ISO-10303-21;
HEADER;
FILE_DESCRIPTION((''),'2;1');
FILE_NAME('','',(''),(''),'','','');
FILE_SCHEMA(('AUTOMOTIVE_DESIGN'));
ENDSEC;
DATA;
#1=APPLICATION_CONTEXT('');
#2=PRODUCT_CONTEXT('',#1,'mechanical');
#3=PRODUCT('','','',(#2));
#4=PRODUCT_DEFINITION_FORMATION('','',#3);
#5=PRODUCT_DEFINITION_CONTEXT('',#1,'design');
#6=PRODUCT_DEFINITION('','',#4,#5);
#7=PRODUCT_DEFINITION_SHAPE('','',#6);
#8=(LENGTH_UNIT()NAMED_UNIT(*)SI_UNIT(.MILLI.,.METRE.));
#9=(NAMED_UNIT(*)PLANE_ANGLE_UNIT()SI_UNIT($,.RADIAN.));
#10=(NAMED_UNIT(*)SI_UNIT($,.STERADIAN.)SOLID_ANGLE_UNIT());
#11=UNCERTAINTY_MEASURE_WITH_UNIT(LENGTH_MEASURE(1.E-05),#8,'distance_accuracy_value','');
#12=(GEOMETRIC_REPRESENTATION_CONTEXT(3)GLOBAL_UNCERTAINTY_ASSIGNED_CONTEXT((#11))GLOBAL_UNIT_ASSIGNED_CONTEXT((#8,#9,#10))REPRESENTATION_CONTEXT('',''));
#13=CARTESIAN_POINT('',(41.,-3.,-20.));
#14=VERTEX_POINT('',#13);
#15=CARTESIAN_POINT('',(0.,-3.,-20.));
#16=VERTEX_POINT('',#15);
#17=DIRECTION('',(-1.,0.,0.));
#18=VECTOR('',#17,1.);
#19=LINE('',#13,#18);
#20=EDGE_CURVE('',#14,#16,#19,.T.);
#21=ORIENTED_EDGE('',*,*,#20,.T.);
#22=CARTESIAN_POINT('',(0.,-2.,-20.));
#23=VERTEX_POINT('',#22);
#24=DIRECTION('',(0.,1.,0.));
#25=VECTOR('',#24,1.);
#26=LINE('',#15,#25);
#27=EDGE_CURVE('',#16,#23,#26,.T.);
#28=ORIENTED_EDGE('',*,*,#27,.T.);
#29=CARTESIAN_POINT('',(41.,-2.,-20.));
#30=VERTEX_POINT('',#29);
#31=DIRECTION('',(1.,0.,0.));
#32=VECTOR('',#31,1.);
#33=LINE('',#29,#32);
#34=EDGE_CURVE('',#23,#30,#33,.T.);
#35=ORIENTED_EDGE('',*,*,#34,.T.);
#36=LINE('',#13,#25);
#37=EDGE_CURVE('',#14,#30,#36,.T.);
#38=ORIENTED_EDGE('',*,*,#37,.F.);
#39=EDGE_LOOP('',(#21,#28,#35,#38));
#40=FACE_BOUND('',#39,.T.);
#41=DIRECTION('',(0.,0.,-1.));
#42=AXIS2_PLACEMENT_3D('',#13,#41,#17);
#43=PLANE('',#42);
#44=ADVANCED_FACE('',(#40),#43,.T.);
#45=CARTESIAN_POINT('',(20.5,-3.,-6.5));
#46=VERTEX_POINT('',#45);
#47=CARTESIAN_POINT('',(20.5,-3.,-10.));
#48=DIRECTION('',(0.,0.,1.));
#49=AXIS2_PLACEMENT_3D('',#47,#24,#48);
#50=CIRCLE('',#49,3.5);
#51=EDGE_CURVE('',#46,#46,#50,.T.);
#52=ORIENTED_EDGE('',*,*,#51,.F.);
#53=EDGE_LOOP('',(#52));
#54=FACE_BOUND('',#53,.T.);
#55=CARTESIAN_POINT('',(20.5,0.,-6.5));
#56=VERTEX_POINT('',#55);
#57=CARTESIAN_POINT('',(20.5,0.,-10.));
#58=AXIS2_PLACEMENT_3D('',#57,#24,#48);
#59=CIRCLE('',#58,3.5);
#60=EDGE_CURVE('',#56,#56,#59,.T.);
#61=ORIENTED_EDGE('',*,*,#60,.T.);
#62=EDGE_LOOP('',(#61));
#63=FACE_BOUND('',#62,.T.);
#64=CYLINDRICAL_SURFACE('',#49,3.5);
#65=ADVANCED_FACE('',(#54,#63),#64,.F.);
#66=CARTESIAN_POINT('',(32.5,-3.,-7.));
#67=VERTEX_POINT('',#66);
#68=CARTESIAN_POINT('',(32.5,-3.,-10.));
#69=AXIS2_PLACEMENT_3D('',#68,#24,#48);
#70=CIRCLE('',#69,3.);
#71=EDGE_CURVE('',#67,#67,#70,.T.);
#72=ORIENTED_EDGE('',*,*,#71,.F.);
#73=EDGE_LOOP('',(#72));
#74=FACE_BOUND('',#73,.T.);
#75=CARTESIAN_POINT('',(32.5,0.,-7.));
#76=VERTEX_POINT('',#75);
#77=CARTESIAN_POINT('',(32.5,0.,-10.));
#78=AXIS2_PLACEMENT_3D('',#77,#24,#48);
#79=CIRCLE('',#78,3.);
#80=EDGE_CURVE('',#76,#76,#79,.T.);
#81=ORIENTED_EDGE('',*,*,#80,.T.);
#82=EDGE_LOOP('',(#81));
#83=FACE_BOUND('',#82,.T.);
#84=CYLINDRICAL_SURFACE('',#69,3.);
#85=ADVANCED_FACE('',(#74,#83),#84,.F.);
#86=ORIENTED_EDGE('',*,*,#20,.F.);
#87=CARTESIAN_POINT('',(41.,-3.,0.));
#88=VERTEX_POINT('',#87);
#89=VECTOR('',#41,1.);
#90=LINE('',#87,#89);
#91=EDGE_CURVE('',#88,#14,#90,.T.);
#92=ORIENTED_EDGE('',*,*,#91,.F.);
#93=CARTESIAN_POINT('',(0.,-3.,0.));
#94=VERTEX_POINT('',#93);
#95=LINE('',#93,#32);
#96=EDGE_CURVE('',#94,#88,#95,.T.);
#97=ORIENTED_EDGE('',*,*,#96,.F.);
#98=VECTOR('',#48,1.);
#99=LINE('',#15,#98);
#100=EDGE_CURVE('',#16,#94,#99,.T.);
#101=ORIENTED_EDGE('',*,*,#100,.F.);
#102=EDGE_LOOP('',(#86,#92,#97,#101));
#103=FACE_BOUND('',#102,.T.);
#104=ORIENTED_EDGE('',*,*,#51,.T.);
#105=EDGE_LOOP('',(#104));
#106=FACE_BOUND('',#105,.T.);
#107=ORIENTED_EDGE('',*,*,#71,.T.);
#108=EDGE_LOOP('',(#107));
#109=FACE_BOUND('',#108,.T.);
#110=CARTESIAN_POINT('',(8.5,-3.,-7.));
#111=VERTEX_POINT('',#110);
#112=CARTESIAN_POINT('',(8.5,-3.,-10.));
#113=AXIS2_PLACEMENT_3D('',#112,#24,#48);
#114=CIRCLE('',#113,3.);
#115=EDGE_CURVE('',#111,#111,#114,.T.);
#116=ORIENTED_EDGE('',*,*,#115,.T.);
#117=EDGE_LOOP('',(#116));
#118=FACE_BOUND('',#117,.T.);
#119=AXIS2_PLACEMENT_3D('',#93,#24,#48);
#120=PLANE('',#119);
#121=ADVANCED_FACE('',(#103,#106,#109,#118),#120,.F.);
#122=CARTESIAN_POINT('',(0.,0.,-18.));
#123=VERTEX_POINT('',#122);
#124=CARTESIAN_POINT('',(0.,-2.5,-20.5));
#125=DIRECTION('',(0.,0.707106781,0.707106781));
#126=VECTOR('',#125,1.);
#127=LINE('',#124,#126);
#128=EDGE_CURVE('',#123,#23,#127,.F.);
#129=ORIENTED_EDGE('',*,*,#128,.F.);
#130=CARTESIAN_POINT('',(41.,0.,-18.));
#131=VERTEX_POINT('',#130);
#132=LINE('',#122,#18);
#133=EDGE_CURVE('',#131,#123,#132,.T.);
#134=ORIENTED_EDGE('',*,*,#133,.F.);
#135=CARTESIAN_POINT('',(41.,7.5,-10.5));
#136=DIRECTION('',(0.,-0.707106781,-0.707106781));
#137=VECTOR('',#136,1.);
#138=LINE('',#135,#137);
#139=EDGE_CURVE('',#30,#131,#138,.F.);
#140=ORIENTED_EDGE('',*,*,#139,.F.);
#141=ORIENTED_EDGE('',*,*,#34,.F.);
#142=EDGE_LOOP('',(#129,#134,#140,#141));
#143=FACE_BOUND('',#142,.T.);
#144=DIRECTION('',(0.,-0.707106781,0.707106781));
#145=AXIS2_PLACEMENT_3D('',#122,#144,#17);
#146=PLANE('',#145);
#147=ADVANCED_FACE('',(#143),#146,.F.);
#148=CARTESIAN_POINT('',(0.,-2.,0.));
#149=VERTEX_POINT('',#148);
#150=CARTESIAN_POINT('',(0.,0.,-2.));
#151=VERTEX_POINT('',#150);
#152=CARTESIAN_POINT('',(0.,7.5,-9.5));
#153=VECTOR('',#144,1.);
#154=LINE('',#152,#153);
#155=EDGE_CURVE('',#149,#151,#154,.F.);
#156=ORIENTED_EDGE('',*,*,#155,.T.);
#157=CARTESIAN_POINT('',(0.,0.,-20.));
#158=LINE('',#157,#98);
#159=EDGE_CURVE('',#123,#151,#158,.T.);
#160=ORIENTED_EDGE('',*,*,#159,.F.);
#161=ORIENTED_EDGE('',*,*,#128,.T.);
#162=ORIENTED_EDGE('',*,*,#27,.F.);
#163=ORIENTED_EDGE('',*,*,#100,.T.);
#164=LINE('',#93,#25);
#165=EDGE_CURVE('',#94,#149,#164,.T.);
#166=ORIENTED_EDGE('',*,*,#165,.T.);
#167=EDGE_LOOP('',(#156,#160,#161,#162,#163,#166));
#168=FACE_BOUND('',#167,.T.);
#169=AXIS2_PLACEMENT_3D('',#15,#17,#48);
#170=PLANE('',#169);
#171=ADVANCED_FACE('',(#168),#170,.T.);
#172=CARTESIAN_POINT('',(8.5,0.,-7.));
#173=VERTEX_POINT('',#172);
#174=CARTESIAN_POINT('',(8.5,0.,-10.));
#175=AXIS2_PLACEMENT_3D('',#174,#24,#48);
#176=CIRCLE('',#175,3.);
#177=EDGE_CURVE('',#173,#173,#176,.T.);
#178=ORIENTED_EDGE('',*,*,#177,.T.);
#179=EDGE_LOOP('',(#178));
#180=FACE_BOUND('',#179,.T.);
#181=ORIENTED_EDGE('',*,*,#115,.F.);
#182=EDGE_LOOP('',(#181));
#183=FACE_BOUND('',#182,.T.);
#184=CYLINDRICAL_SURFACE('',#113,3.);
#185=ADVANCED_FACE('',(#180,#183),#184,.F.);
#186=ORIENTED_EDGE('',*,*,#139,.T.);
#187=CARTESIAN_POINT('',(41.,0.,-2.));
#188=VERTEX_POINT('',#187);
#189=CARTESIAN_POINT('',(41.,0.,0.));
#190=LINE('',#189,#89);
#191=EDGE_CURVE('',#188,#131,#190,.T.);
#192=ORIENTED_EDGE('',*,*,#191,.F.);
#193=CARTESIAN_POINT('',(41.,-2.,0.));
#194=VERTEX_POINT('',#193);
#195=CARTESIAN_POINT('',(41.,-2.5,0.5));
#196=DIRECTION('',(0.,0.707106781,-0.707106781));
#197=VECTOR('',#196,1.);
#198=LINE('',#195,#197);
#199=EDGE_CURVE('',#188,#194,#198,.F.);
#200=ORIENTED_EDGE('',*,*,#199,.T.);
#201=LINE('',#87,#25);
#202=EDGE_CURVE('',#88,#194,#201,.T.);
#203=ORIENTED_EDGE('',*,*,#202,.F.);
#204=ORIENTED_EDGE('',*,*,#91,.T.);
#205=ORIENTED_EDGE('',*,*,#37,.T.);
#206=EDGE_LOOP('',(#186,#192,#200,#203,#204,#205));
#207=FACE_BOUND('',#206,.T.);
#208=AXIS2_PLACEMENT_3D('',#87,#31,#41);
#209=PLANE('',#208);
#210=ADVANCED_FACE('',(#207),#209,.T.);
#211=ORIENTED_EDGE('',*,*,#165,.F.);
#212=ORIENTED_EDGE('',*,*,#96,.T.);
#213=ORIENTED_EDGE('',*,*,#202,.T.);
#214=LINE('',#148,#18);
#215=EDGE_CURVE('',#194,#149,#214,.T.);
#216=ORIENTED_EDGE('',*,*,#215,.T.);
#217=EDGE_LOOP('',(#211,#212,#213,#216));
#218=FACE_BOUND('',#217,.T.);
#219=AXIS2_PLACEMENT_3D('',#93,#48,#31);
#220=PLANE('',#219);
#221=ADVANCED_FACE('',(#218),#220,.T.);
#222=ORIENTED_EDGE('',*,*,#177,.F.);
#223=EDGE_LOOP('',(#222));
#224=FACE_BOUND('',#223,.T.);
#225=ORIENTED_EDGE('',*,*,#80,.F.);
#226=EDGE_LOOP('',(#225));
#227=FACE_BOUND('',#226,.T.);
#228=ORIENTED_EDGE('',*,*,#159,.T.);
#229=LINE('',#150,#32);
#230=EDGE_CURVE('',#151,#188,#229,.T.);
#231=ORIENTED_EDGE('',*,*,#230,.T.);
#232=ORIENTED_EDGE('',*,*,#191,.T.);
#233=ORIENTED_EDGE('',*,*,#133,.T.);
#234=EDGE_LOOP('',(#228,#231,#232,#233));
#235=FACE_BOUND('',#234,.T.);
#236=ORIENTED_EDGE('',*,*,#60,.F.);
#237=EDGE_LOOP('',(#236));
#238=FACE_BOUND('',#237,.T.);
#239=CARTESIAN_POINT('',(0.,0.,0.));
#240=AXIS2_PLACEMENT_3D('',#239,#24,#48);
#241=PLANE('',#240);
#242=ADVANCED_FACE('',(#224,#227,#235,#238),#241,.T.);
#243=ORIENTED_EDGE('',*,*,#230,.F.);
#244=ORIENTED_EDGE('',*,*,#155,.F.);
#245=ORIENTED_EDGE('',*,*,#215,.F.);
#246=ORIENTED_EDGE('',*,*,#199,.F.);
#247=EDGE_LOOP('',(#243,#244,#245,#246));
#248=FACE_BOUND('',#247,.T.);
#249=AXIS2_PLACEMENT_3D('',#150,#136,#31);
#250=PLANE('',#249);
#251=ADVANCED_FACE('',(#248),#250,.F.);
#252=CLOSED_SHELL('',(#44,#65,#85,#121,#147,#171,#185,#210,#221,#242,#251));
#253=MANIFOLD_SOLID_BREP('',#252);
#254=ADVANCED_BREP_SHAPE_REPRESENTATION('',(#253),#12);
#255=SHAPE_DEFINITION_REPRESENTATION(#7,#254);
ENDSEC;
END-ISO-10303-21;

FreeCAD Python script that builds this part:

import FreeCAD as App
import Part
import Sketcher
Q = App.Units.Quantity


def edges_at(feature, points):
    """Names of the edges that pass closest to the given points."""
    edges = feature.Shape.Edges
    near = lambda p: min(range(len(edges)), key=lambda i: edges[i].distToShape(Part.Vertex(*p))[0])
    return sorted({f"Edge{near(p) + 1}" for p in points})

doc = App.newDocument("Part")
body = doc.addObject("PartDesign::Body", "Body")

# Sketch on XZ plane
sketch1 = doc.addObject("Sketcher::SketchObject", "Sketch")
body.addObject(sketch1)
sketch1.AttachmentSupport = (doc.XZ_Plane, [""])
sketch1.MapMode = "FlatFace"
sketch1.addGeometry([
    Part.LineSegment(App.Vector(0, -20, 0), App.Vector(0, 0, 0)),
    Part.LineSegment(App.Vector(0, 0, 0), App.Vector(41, 0, 0)),
    Part.LineSegment(App.Vector(41, 0, 0), App.Vector(41, -20, 0)),
    Part.LineSegment(App.Vector(41, -20, 0), App.Vector(0, -20, 0)),
], False)
sketch1.addConstraint([
    Sketcher.Constraint("Coincident", 0, 2, 1, 1),
    Sketcher.Constraint("Coincident", 1, 2, 2, 1),
    Sketcher.Constraint("Coincident", 2, 2, 3, 1),
    Sketcher.Constraint("Coincident", 3, 2, 0, 1),
    Sketcher.Constraint("Vertical", 0),
    Sketcher.Constraint("Horizontal", 1),
    Sketcher.Constraint("Vertical", 2),
    Sketcher.Constraint("Horizontal", 3),
    Sketcher.Constraint("Coincident", 0, 2, -1, 1),
    Sketcher.Constraint("DistanceX", 1, 1, 1, 2, Q("41 mm")),
    Sketcher.Constraint("DistanceY", 0, 1, 0, 2, Q("20 mm")),
])
pad1 = doc.addObject("PartDesign::Pad", "Pad")
body.addObject(pad1)
pad1.Profile = sketch1
pad1.Length = 3

# Sketch on XZ plane
sketch2 = doc.addObject("Sketcher::SketchObject", "Sketch001")
body.addObject(sketch2)
sketch2.AttachmentSupport = (doc.XZ_Plane, [""])
sketch2.MapMode = "FlatFace"
sketch2.addGeometry([
    Part.Circle(App.Vector(8.5, -10, 0), App.Vector(0, 0, 1), 3),
    Part.Circle(App.Vector(32.5, -10, 0), App.Vector(0, 0, 1), 3),
    Part.Circle(App.Vector(20.5, -10, 0), App.Vector(0, 0, 1), 3.5),
], False)
sketch2.addConstraint([
    Sketcher.Constraint("Equal", 0, 1),
    Sketcher.Constraint("Horizontal", 0, 3, 1, 3),
    Sketcher.Constraint("Horizontal", 1, 3, 2, 3),
    Sketcher.Constraint("Diameter", 0, Q("6 mm")),
    Sketcher.Constraint("Diameter", 2, Q("7 mm")),
    Sketcher.Constraint("DistanceY", 0, 3, -1, 1, Q("10 mm")),
    Sketcher.Constraint("DistanceX", 0, 3, 1, 3, Q("24 mm")),
    Sketcher.Constraint("DistanceX", 0, 3, 2, 3, Q("12 mm")),
    Sketcher.Constraint("DistanceX", -1, 1, 0, 3, Q("8.5 mm")),
])
pocket1 = doc.addObject("PartDesign::Pocket", "Pocket")
body.addObject(pocket1)
pocket1.Profile = sketch2
pocket1.Type = "ThroughAll"
pocket1.Reversed = True
doc.recompute()

chamfer = doc.addObject("PartDesign::Chamfer", "Chamfer")
body.addObject(chamfer)
chamfer.Base = (pocket1, edges_at(pocket1, [(20.5, 0, 0), (20.5, 0, -20)]))
chamfer.Size = 2

doc.recompute()
